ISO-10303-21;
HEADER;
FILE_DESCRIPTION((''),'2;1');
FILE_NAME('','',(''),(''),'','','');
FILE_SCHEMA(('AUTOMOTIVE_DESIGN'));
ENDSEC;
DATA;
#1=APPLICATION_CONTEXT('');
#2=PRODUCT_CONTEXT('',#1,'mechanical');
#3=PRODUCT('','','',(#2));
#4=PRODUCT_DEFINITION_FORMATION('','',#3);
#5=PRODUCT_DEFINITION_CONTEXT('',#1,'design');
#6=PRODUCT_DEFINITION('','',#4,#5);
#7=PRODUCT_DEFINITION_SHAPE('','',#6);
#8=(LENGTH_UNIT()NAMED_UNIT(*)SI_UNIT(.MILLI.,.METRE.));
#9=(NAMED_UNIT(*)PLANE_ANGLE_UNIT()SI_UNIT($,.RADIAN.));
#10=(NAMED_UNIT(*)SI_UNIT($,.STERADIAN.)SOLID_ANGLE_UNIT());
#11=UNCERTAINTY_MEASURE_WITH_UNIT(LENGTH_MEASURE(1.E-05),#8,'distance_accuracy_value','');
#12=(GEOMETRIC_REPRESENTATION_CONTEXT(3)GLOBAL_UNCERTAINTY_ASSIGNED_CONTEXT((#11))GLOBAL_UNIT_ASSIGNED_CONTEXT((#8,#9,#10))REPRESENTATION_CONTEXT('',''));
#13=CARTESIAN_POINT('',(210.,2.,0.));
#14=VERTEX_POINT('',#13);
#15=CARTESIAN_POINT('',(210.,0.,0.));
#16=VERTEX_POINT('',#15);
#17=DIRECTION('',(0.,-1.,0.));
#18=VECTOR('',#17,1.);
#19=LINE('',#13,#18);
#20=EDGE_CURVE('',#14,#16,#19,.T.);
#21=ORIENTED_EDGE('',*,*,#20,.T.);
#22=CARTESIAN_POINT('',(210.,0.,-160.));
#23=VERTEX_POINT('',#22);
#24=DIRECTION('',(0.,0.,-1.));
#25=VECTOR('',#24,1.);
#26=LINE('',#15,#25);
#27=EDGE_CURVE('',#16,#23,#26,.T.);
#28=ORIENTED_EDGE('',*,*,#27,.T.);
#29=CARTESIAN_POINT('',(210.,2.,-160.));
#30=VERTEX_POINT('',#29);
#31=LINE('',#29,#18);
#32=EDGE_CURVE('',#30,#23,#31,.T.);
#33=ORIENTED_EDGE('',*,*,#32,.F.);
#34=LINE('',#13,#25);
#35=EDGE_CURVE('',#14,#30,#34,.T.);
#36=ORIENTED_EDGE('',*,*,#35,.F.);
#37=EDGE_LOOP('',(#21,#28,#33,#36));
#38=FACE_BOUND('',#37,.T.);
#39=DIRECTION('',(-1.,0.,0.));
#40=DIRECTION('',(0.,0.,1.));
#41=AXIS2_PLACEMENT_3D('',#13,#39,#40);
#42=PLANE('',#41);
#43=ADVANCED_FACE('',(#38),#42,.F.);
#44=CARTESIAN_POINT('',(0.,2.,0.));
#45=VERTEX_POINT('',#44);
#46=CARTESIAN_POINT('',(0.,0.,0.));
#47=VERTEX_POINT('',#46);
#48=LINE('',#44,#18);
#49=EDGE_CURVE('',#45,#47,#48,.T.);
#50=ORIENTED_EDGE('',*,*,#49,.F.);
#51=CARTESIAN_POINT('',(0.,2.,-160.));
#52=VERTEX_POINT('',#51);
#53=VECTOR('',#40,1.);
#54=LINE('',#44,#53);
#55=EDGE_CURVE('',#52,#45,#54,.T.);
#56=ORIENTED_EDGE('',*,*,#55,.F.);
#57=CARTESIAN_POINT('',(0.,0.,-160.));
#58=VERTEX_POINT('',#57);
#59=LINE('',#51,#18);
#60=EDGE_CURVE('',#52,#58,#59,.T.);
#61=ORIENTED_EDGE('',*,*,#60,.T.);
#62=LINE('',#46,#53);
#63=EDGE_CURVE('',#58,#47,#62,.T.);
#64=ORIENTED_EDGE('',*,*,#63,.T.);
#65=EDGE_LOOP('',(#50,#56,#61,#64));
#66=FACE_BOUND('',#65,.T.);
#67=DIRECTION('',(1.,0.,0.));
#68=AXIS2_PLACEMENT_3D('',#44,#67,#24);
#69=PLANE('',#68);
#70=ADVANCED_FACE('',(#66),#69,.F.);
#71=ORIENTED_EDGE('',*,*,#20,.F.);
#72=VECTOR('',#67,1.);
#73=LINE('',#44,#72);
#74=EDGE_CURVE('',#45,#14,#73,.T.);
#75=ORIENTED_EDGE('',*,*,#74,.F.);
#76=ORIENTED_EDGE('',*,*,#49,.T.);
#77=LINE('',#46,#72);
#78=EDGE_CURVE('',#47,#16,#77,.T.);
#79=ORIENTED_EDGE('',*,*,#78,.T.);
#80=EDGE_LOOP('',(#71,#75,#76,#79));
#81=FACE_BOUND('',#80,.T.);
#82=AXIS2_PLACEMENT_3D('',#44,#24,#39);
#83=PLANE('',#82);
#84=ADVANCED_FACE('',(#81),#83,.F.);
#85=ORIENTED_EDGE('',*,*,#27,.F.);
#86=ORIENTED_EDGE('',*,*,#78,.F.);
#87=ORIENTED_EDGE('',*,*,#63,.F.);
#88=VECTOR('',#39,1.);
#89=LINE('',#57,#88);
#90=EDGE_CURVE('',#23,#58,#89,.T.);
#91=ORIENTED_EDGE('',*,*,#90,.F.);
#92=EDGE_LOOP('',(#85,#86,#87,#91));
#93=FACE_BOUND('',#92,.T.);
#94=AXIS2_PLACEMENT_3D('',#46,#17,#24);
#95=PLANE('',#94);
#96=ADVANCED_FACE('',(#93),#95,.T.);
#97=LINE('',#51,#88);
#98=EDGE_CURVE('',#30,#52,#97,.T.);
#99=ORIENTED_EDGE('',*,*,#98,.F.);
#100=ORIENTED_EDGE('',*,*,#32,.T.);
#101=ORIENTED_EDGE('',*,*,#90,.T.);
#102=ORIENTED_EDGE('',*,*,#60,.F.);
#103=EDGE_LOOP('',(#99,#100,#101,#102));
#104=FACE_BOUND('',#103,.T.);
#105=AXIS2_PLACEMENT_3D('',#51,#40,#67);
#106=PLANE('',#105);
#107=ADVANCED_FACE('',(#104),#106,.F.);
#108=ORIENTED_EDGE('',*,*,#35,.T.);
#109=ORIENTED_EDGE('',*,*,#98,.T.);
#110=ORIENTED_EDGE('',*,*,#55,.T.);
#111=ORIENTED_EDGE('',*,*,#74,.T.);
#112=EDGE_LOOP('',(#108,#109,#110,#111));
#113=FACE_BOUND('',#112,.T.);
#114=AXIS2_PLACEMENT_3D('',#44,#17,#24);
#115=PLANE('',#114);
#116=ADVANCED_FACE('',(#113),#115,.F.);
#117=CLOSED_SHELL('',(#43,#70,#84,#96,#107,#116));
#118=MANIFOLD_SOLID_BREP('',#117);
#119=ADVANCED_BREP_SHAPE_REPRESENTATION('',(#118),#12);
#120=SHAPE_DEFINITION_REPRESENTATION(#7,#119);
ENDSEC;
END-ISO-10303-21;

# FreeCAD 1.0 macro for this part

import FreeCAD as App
import Part
import Sketcher

V = App.Vector
Q = App.Units.Quantity


def add_polygon(sketch, points):
    """Adds a closed chain of lines whose ends are joined by coincident constraints."""
    first, n = sketch.GeometryCount, len(points)
    for a, b in zip(points, points[1:] + points[:1]):
        sketch.addGeometry(Part.LineSegment(App.Vector(*a, 0), App.Vector(*b, 0)), False)
    for i in range(n):
        sketch.addConstraint(Sketcher.Constraint("Coincident", first + i, 2, first + (i + 1) % n, 1))

doc = App.newDocument("Part")
body = doc.addObject("PartDesign::Body", "Body")

# Sketch on XZ plane
sketch1 = doc.addObject("Sketcher::SketchObject", "Sketch")
body.addObject(sketch1)
sketch1.AttachmentSupport = (doc.XZ_Plane, [""])
sketch1.MapMode = "FlatFace"
add_polygon(sketch1, [(0, -160), (0, 0), (210, 0), (210, -160)])  # lines 0-3
sketch1.addConstraint([
    Sketcher.Constraint("Vertical", 0),
    Sketcher.Constraint("Horizontal", 1),
    Sketcher.Constraint("Vertical", 2),
    Sketcher.Constraint("Horizontal", 3),
    Sketcher.Constraint("Coincident", 0, 2, -1, 1),
    Sketcher.Constraint("DistanceX", 1, 1, 1, 2, Q("210 mm")),
    Sketcher.Constraint("DistanceY", 0, 1, 0, 2, Q("160 mm")),
])
pad1 = doc.addObject("PartDesign::Pad", "Pad")
body.addObject(pad1)
pad1.Profile = sketch1
pad1.Length = 2
pad1.Reversed = True

doc.recompute()
